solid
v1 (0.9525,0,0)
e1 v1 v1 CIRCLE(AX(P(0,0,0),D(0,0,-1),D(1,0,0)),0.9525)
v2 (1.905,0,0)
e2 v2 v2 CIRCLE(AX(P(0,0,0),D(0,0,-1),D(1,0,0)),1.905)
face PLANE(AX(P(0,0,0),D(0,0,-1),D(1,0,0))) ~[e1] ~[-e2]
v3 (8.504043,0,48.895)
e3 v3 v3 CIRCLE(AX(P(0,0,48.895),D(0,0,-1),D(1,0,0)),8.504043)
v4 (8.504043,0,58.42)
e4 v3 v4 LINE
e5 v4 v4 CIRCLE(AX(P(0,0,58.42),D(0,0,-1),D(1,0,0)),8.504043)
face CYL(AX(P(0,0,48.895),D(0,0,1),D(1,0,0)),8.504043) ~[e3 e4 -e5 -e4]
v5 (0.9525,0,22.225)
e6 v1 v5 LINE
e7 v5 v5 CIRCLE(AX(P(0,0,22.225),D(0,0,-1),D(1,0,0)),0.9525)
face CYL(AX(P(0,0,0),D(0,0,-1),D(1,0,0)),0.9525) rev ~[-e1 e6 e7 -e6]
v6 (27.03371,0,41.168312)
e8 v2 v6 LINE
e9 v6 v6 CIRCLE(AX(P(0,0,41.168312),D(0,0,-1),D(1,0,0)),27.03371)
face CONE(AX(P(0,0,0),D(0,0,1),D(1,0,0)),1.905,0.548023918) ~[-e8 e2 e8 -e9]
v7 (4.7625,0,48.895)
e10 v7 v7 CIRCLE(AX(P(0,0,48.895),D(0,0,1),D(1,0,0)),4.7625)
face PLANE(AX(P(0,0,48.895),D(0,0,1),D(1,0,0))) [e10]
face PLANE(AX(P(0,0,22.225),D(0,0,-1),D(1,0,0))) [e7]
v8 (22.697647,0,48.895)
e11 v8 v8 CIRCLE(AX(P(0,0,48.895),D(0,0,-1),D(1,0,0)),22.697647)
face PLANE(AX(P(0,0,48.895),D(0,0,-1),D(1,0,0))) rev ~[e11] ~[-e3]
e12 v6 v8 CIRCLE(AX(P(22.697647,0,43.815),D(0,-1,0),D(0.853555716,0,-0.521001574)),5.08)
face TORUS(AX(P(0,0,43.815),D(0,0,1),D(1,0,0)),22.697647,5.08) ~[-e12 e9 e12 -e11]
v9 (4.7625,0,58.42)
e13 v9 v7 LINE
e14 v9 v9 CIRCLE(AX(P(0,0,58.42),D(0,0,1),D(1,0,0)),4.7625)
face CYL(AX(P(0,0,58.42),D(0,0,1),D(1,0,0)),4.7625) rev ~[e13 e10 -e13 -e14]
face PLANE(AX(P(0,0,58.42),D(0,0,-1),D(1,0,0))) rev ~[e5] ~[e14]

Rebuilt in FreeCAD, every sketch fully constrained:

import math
import FreeCAD as App
import Part
import Sketcher
Q = App.Units.Quantity

doc = App.newDocument("Part")
body = doc.addObject("PartDesign::Body", "Body")

sketch1 = body.newObject("Sketcher::SketchObject", "Sketch")
sketch1.AttachmentSupport = (doc.getObject("XZ_Plane"), [""])
sketch1.MapMode = "FlatFace"
sketch1.addGeometry([
    Part.LineSegment(App.Vector(0, 58.4, 0), App.Vector(0, 0, 0)),
    Part.LineSegment(App.Vector(0, 0, 0), App.Vector(1.9, 0, 0)),
    Part.LineSegment(App.Vector(1.9, 0, 0), App.Vector(27, 41.2, 0)),
    Part.ArcOfCircle(Part.Circle(App.Vector(22.7, 43.8, 0), App.Vector(0, 0, 1), 5.1), math.radians(-31), math.radians(90)),
    Part.LineSegment(App.Vector(22.7, 48.9, 0), App.Vector(8.5, 48.9, 0)),
    Part.LineSegment(App.Vector(8.5, 48.9, 0), App.Vector(8.5, 58.4, 0)),
    Part.LineSegment(App.Vector(8.5, 58.4, 0), App.Vector(0, 58.4, 0)),
], False)
sketch1.addConstraint([
    Sketcher.Constraint("Coincident", 0, 2, 1, 1),
    Sketcher.Constraint("Coincident", 1, 2, 2, 1),
    Sketcher.Constraint("Tangent", 2, 2, 3, 1),
    Sketcher.Constraint("Tangent", 3, 2, 4, 1),
    Sketcher.Constraint("Coincident", 4, 2, 5, 1),
    Sketcher.Constraint("Coincident", 5, 2, 6, 1),
    Sketcher.Constraint("Coincident", 6, 2, 0, 1),
    Sketcher.Constraint("Vertical", 0),
    Sketcher.Constraint("Horizontal", 1),
    Sketcher.Constraint("Horizontal", 4),
    Sketcher.Constraint("Vertical", 5),
    Sketcher.Constraint("Horizontal", 6),
    Sketcher.Constraint("Coincident", 0, 2, -1, 1),
    Sketcher.Constraint("Radius", 3, Q("0.2 in")),
    Sketcher.Constraint("DistanceY", 0, 2, 0, 1, Q("2.3 in")),
    Sketcher.Constraint("DistanceX", 1, 1, 1, 2, Q("0.075 in")),
    Sketcher.Constraint("DistanceY", 5, 1, 5, 2, Q("0.375 in")),
    Sketcher.Constraint("DistanceX", 4, 2, 4, 1, 14.193604),
    Sketcher.Constraint("DistanceX", 6, 2, 6, 1, 8.504043),
])
revolution = body.newObject("PartDesign::Revolution", "Revolution")
revolution.Profile = sketch1
revolution.ReferenceAxis = (sketch1, ["V_Axis"])
revolution.Angle = 360

sketch2 = body.newObject("Sketcher::SketchObject", "Sketch001")
sketch2.AttachmentSupport = (doc.getObject("XY_Plane"), [""])
sketch2.MapMode = "FlatFace"
sketch2.AttachmentOffset = App.Placement(App.Vector(0, 0, 2.3 * 25.4), App.Rotation())
sketch2.addGeometry(Part.Circle(App.Vector(0, 0, 0), App.Vector(0, 0, 1), 4.8), False)
sketch2.addConstraint([
    Sketcher.Constraint("Coincident", 0, 3, -1, 1),
    Sketcher.Constraint("Diameter", 0, Q("0.375 in")),
])
pocket1 = body.newObject("PartDesign::Pocket", "Pocket")
pocket1.Profile = sketch2
pocket1.Length = Q("0.375 in")

sketch3 = body.newObject("Sketcher::SketchObject", "Sketch002")
sketch3.AttachmentSupport = (doc.getObject("XY_Plane"), [""])
sketch3.MapMode = "FlatFace"
sketch3.addGeometry(Part.Circle(App.Vector(0, 0, 0), App.Vector(0, 0, 1), 1), False)
sketch3.addConstraint([
    Sketcher.Constraint("Coincident", 0, 3, -1, 1),
    Sketcher.Constraint("Diameter", 0, Q("0.075 in")),
])
pocket2 = body.newObject("PartDesign::Pocket", "Pocket001")
pocket2.Profile = sketch3
pocket2.Length = Q("0.875 in")
pocket2.Reversed = True

doc.recompute()
